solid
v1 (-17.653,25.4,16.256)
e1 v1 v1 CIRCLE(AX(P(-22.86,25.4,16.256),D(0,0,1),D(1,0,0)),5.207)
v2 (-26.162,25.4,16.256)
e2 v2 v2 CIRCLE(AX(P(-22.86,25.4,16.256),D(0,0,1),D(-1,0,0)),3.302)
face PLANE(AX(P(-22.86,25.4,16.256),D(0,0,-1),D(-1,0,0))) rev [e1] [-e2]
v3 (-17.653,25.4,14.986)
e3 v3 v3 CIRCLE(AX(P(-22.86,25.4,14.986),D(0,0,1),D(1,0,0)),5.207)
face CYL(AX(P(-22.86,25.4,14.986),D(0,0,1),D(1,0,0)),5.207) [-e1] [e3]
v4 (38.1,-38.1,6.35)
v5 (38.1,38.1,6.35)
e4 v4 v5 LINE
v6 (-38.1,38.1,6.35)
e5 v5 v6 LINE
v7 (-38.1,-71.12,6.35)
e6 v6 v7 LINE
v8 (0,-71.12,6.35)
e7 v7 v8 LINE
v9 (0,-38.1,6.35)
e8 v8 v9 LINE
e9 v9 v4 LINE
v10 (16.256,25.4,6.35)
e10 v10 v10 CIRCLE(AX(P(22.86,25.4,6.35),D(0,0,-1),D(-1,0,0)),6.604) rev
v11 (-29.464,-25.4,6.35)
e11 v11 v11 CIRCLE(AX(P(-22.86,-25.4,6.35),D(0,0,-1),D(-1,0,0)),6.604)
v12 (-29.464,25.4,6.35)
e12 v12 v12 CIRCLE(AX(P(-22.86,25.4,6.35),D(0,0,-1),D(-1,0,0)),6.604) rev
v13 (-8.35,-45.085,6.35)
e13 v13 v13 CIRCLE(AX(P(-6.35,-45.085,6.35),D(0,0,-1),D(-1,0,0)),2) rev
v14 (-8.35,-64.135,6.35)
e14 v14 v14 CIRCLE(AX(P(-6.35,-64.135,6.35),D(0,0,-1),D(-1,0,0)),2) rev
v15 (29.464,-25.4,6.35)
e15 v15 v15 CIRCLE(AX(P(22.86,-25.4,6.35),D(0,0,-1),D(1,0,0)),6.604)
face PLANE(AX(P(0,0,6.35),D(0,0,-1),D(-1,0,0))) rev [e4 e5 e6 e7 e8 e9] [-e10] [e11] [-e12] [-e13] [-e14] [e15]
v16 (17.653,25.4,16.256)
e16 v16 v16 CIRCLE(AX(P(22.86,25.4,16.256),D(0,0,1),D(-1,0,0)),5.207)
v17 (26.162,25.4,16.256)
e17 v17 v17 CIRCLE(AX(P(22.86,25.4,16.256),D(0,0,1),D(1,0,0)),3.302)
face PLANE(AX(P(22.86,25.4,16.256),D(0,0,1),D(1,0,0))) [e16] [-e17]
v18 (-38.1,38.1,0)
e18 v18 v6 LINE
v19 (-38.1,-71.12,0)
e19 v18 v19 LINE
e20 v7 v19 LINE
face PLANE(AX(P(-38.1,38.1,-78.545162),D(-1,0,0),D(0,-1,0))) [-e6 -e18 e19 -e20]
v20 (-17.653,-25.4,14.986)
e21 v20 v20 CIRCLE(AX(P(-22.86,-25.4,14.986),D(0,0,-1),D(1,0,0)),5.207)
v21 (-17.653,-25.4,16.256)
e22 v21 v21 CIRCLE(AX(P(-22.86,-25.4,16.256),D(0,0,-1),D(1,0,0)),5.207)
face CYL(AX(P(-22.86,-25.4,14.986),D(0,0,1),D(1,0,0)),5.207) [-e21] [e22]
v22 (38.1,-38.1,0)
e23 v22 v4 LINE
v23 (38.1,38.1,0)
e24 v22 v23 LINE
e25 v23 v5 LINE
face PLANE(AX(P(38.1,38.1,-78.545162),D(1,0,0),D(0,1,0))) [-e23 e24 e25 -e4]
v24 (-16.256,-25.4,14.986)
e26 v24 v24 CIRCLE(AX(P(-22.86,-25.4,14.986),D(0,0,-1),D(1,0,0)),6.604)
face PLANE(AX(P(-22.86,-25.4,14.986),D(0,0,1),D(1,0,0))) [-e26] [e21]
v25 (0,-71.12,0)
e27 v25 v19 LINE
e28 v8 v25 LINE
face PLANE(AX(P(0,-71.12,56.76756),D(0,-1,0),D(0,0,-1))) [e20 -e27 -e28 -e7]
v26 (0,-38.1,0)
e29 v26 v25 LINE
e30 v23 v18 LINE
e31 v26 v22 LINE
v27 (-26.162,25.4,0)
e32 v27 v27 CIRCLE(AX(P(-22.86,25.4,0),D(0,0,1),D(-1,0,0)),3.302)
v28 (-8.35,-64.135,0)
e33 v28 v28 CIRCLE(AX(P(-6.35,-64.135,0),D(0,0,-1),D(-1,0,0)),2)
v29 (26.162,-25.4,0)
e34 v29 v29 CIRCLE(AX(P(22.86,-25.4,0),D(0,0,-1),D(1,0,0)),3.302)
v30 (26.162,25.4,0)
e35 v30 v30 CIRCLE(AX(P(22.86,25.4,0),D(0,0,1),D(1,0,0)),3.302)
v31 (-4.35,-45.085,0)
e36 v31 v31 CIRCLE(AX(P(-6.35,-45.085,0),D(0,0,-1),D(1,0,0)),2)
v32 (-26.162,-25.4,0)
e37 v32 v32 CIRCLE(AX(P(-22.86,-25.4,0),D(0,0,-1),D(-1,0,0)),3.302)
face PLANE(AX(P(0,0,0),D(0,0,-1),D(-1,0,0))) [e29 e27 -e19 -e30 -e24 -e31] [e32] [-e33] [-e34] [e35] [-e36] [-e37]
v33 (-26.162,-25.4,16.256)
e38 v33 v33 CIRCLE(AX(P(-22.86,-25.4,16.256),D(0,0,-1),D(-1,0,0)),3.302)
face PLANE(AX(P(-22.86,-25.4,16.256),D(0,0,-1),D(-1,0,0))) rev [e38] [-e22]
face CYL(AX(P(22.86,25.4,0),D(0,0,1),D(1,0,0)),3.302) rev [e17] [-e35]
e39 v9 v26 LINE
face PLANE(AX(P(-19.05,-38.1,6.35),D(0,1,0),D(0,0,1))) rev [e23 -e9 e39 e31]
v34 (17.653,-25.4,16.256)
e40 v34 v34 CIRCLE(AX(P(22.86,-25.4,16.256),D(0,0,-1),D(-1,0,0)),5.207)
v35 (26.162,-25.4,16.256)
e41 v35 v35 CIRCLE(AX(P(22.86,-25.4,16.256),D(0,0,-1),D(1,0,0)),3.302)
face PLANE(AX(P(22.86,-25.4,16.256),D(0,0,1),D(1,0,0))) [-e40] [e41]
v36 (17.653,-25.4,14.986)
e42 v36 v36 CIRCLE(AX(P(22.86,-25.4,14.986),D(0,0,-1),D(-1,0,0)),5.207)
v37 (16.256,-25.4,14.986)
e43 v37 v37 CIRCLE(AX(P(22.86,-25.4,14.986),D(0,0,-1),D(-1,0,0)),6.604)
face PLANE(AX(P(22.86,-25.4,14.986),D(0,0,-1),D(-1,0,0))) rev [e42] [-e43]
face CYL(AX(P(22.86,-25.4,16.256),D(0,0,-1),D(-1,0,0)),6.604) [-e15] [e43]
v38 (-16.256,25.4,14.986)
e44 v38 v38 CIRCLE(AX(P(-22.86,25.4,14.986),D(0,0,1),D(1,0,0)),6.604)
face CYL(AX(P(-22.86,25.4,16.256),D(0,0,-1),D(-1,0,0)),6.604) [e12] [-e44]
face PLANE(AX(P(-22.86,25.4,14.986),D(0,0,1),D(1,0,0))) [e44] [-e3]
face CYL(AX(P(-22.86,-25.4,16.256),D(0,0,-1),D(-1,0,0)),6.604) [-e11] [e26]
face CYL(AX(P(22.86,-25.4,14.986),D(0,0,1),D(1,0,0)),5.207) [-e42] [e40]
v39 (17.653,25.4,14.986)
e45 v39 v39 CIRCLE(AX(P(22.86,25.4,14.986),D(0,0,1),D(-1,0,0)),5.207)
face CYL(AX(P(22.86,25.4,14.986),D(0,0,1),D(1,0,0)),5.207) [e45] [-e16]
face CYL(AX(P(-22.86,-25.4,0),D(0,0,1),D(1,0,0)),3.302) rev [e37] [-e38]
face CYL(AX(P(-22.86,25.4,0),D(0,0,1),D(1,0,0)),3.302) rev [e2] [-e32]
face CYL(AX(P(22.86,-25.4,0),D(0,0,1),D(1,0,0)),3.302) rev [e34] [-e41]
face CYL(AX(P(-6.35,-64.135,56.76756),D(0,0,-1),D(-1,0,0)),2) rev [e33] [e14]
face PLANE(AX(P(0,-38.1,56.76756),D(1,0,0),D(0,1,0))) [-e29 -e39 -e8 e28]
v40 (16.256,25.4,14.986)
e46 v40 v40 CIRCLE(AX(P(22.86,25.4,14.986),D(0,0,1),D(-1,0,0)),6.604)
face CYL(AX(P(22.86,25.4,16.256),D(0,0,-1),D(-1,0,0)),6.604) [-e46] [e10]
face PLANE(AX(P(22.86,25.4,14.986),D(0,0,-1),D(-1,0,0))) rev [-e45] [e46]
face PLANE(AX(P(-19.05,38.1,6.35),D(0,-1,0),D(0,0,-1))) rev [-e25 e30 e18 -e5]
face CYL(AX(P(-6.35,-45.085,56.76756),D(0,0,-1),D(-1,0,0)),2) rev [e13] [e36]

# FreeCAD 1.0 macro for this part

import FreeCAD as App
import Part
import Sketcher
from FreeCAD import Vector
Q = App.Units.Quantity

doc = App.newDocument("Part")
body = doc.addObject("PartDesign::Body", "Body")

# Sketch on XY plane
sketch1 = body.newObject("Sketcher::SketchObject", "Sketch")
sketch1.AttachmentSupport = (doc.getObject("XY_Plane"), [""])
sketch1.MapMode = "FlatFace"
sketch1.addGeometry([
    Part.LineSegment(Vector(-19, 38, 0), Vector(-19, -38, 0)),
    Part.LineSegment(Vector(-19, -38, 0), Vector(19, -38, 0)),
    Part.LineSegment(Vector(19, -38, 0), Vector(19, 38, 0)),
    Part.LineSegment(Vector(19, 38, 0), Vector(-19, 38, 0)),
], False)
sketch1.addConstraint([
    Sketcher.Constraint("Coincident", 0, 2, 1, 1),
    Sketcher.Constraint("Coincident", 1, 2, 2, 1),
    Sketcher.Constraint("Coincident", 2, 2, 3, 1),
    Sketcher.Constraint("Coincident", 3, 2, 0, 1),
    Sketcher.Constraint("Vertical", 0),
    Sketcher.Constraint("Horizontal", 1),
    Sketcher.Constraint("Vertical", 2),
    Sketcher.Constraint("Horizontal", 3),
    Sketcher.Constraint("Symmetric", 0, 2, 2, 2, -1, 1),
    Sketcher.Constraint("DistanceY", 0, 2, 0, 1, Q("3 in")),
    Sketcher.Constraint("DistanceX", 1, 1, 1, 2, Q("1.5 in")),
])
pad1 = body.newObject("PartDesign::Pad", "Pad")
pad1.Profile = sketch1
pad1.Length = Q("0.25 in")

# Sketch on XY plane
sketch2 = body.newObject("Sketcher::SketchObject", "Sketch001")
sketch2.AttachmentSupport = (doc.getObject("XY_Plane"), [""])
sketch2.MapMode = "FlatFace"
sketch2.AttachmentOffset = App.Placement(Vector(0, 0, 0.25 * 25.4), App.Rotation())
sketch2.addGeometry([
    Part.LineSegment(Vector(-38, 38, 0), Vector(-38, -38, 0)),  # 0
    Part.LineSegment(Vector(-38, -38, 0), Vector(-19, -38, 0)),  # 1
    Part.LineSegment(Vector(-19, -38, 0), Vector(-19, 38, 0)),  # 2
    Part.LineSegment(Vector(-19, 38, 0), Vector(-38, 38, 0)),  # 3
    Part.LineSegment(Vector(19, 38, 0), Vector(19, -38, 0)),  # 4
    Part.LineSegment(Vector(19, -38, 0), Vector(38, -38, 0)),  # 5
    Part.LineSegment(Vector(38, -38, 0), Vector(38, 38, 0)),  # 6
    Part.LineSegment(Vector(38, 38, 0), Vector(19, 38, 0)),  # 7
], False)
sketch2.addConstraint([
    Sketcher.Constraint("Coincident", 0, 2, 1, 1),
    Sketcher.Constraint("Coincident", 1, 2, 2, 1),
    Sketcher.Constraint("Coincident", 2, 2, 3, 1),
    Sketcher.Constraint("Coincident", 3, 2, 0, 1),
    Sketcher.Constraint("Coincident", 4, 2, 5, 1),
    Sketcher.Constraint("Coincident", 5, 2, 6, 1),
    Sketcher.Constraint("Coincident", 6, 2, 7, 1),
    Sketcher.Constraint("Coincident", 7, 2, 4, 1),
    Sketcher.Constraint("Vertical", 0),
    Sketcher.Constraint("Horizontal", 1),
    Sketcher.Constraint("Vertical", 2),
    Sketcher.Constraint("Horizontal", 3),
    Sketcher.Constraint("Vertical", 4),
    Sketcher.Constraint("Horizontal", 5),
    Sketcher.Constraint("Vertical", 6),
    Sketcher.Constraint("Horizontal", 7),
    Sketcher.Constraint("Symmetric", 2, 2, 4, 2, -1, 1),
    Sketcher.Constraint("Symmetric", 0, 2, 6, 2, -1, 1),
    Sketcher.Constraint("Horizontal", 1, 2, 4, 2),
    Sketcher.Constraint("DistanceY", 0, 2, 0, 1, Q("3 in")),
    Sketcher.Constraint("DistanceX", 0, 2, 5, 2, Q("3 in")),
    Sketcher.Constraint("DistanceX", 1, 1, 1, 2, Q("0.75 in")),
])
pad2 = body.newObject("PartDesign::Pad", "Pad001")
pad2.Profile = sketch2
pad2.Length = Q("0.25 in")
pad2.Reversed = True

# Sketch on XY plane
sketch3 = body.newObject("Sketcher::SketchObject", "Sketch002")
sketch3.AttachmentSupport = (doc.getObject("XY_Plane"), [""])
sketch3.MapMode = "FlatFace"
sketch3.AttachmentOffset = App.Placement(Vector(0, 0, 0.25 * 25.4), App.Rotation())
sketch3.addGeometry([
    Part.Circle(Vector(23, 25, 0), Vector(0, 0, 1), 7),
    Part.Circle(Vector(-23, 25, 0), Vector(0, 0, 1), 7),
], False)
sketch3.addConstraint([
    Sketcher.Constraint("Equal", 0, 1),
    Sketcher.Constraint("Symmetric", 0, 3, 1, 3, -2),
    Sketcher.Constraint("Diameter", 0, Q("0.52 in")),
    Sketcher.Constraint("DistanceY", -1, 1, 0, 3, Q("1 in")),
    Sketcher.Constraint("DistanceX", -1, 1, 0, 3, Q("0.9 in")),
])
pad3 = body.newObject("PartDesign::Pad", "Pad002")
pad3.Profile = sketch3
pad3.Length = Q("0.39 in")

# Sketch on XY plane
sketch4 = body.newObject("Sketcher::SketchObject", "Sketch003")
sketch4.AttachmentSupport = (doc.getObject("XY_Plane"), [""])
sketch4.MapMode = "FlatFace"
sketch4.AttachmentOffset = App.Placement(Vector(0, 0, 0.64 * 25.4), App.Rotation())
sketch4.addGeometry([
    Part.Circle(Vector(22.9, 25.4, 0), Vector(0, 0, 1), 3.3),
    Part.Circle(Vector(-22.9, 25.4, 0), Vector(0, 0, 1), 3.3),
], False)
sketch4.addConstraint([
    Sketcher.Constraint("Equal", 0, 1),
    Sketcher.Constraint("Symmetric", 0, 3, 1, 3, -2),
    Sketcher.Constraint("Diameter", 0, Q("0.26 in")),
    Sketcher.Constraint("DistanceY", -1, 1, 0, 3, Q("1 in")),
    Sketcher.Constraint("DistanceX", -1, 1, 0, 3, Q("0.9 in")),
])
pocket1 = body.newObject("PartDesign::Pocket", "Pocket")
pocket1.Profile = sketch4
pocket1.Type = "ThroughAll"

# Sketch on XY plane
sketch5 = body.newObject("Sketcher::SketchObject", "Sketch004")
sketch5.AttachmentSupport = (doc.getObject("XY_Plane"), [""])
sketch5.MapMode = "FlatFace"
sketch5.AttachmentOffset = App.Placement(Vector(0, 0, 0.59 * 25.4), App.Rotation())
sketch5.addGeometry([
    Part.Circle(Vector(-23, 25, 0), Vector(0, 0, 1), 7),
    Part.Circle(Vector(-23, 25, 0), Vector(0, 0, 1), 5),
    Part.Circle(Vector(23, 25, 0), Vector(0, 0, 1), 7),
    Part.Circle(Vector(23, 25, 0), Vector(0, 0, 1), 5),
], False)
sketch5.addConstraint([
    Sketcher.Constraint("Coincident", 1, 3, 0, 3),
    Sketcher.Constraint("Coincident", 3, 3, 2, 3),
    Sketcher.Constraint("Equal", 0, 2),
    Sketcher.Constraint("Equal", 1, 3),
    Sketcher.Constraint("Symmetric", 0, 3, 2, 3, -2),
    Sketcher.Constraint("Diameter", 0, Q("0.52 in")),
    Sketcher.Constraint("Diameter", 1, Q("0.41 in")),
    Sketcher.Constraint("DistanceY", -1, 1, 0, 3, Q("1 in")),
    Sketcher.Constraint("DistanceX", 0, 3, -1, 1, Q("0.9 in")),
])
pocket2 = body.newObject("PartDesign::Pocket", "Pocket001")
pocket2.Profile = sketch5
pocket2.Length = Q("0.05 in")
pocket2.Reversed = True
doc.recompute()

mirrored = body.newObject("PartDesign::Mirrored", "Mirrored")
mirrored.Originals = [pad3, pocket1, pocket2]
mirrored.MirrorPlane = (doc.getObject("XZ_Plane"), [""])
body.Tip = mirrored

# Sketch on XY plane
sketch6 = body.newObject("Sketcher::SketchObject", "Sketch005")
sketch6.AttachmentSupport = (doc.getObject("XY_Plane"), [""])
sketch6.MapMode = "FlatFace"
sketch6.addGeometry([
    Part.LineSegment(Vector(0, -38.1, 0), Vector(0, -71.1, 0)),  # 0
    Part.LineSegment(Vector(0, -71.1, 0), Vector(-38.1, -71.1, 0)),  # 1
    Part.LineSegment(Vector(-38.1, -71.1, 0), Vector(-38.1, -38.1, 0)),  # 2
    Part.LineSegment(Vector(-38.1, -38.1, 0), Vector(0, -38.1, 0)),  # 3
    Part.Circle(Vector(-6.3, -64.1, 0), Vector(0, 0, 1), 2),  # 4
    Part.Circle(Vector(-6.3, -45.1, 0), Vector(0, 0, 1), 2),  # 5
], False)
sketch6.addConstraint([
    Sketcher.Constraint("Coincident", 0, 2, 1, 1),
    Sketcher.Constraint("Coincident", 1, 2, 2, 1),
    Sketcher.Constraint("Coincident", 2, 2, 3, 1),
    Sketcher.Constraint("Coincident", 3, 2, 0, 1),
    Sketcher.Constraint("Vertical", 0),
    Sketcher.Constraint("Horizontal", 1),
    Sketcher.Constraint("Vertical", 2),
    Sketcher.Constraint("Horizontal", 3),
    Sketcher.Constraint("Equal", 4, 5),
    Sketcher.Constraint("PointOnObject", 0, 2, -2),
    Sketcher.Constraint("Vertical", 4, 3, 5, 3),
    Sketcher.Constraint("DistanceX", 1, 2, 1, 1, Q("1.5 in")),
    Sketcher.Constraint("DistanceY", 0, 2, 0, 1, Q("1.3 in")),
    Sketcher.Constraint("DistanceY", 0, 2, -1, 1, Q("2.8 in")),
    Sketcher.Constraint("Diameter", 4, Q("4 mm")),
    Sketcher.Constraint("DistanceX", 4, 3, -1, 1, Q("0.25 in")),
    Sketcher.Constraint("DistanceY", 4, 3, 5, 3, Q("0.75 in")),
    Sketcher.Constraint("DistanceY", 4, 3, -1, 1, Q("2.525 in")),
])
pad4 = body.newObject("PartDesign::Pad", "Pad003")
pad4.Profile = sketch6
pad4.Length = Q("0.25 in")

doc.recompute()
